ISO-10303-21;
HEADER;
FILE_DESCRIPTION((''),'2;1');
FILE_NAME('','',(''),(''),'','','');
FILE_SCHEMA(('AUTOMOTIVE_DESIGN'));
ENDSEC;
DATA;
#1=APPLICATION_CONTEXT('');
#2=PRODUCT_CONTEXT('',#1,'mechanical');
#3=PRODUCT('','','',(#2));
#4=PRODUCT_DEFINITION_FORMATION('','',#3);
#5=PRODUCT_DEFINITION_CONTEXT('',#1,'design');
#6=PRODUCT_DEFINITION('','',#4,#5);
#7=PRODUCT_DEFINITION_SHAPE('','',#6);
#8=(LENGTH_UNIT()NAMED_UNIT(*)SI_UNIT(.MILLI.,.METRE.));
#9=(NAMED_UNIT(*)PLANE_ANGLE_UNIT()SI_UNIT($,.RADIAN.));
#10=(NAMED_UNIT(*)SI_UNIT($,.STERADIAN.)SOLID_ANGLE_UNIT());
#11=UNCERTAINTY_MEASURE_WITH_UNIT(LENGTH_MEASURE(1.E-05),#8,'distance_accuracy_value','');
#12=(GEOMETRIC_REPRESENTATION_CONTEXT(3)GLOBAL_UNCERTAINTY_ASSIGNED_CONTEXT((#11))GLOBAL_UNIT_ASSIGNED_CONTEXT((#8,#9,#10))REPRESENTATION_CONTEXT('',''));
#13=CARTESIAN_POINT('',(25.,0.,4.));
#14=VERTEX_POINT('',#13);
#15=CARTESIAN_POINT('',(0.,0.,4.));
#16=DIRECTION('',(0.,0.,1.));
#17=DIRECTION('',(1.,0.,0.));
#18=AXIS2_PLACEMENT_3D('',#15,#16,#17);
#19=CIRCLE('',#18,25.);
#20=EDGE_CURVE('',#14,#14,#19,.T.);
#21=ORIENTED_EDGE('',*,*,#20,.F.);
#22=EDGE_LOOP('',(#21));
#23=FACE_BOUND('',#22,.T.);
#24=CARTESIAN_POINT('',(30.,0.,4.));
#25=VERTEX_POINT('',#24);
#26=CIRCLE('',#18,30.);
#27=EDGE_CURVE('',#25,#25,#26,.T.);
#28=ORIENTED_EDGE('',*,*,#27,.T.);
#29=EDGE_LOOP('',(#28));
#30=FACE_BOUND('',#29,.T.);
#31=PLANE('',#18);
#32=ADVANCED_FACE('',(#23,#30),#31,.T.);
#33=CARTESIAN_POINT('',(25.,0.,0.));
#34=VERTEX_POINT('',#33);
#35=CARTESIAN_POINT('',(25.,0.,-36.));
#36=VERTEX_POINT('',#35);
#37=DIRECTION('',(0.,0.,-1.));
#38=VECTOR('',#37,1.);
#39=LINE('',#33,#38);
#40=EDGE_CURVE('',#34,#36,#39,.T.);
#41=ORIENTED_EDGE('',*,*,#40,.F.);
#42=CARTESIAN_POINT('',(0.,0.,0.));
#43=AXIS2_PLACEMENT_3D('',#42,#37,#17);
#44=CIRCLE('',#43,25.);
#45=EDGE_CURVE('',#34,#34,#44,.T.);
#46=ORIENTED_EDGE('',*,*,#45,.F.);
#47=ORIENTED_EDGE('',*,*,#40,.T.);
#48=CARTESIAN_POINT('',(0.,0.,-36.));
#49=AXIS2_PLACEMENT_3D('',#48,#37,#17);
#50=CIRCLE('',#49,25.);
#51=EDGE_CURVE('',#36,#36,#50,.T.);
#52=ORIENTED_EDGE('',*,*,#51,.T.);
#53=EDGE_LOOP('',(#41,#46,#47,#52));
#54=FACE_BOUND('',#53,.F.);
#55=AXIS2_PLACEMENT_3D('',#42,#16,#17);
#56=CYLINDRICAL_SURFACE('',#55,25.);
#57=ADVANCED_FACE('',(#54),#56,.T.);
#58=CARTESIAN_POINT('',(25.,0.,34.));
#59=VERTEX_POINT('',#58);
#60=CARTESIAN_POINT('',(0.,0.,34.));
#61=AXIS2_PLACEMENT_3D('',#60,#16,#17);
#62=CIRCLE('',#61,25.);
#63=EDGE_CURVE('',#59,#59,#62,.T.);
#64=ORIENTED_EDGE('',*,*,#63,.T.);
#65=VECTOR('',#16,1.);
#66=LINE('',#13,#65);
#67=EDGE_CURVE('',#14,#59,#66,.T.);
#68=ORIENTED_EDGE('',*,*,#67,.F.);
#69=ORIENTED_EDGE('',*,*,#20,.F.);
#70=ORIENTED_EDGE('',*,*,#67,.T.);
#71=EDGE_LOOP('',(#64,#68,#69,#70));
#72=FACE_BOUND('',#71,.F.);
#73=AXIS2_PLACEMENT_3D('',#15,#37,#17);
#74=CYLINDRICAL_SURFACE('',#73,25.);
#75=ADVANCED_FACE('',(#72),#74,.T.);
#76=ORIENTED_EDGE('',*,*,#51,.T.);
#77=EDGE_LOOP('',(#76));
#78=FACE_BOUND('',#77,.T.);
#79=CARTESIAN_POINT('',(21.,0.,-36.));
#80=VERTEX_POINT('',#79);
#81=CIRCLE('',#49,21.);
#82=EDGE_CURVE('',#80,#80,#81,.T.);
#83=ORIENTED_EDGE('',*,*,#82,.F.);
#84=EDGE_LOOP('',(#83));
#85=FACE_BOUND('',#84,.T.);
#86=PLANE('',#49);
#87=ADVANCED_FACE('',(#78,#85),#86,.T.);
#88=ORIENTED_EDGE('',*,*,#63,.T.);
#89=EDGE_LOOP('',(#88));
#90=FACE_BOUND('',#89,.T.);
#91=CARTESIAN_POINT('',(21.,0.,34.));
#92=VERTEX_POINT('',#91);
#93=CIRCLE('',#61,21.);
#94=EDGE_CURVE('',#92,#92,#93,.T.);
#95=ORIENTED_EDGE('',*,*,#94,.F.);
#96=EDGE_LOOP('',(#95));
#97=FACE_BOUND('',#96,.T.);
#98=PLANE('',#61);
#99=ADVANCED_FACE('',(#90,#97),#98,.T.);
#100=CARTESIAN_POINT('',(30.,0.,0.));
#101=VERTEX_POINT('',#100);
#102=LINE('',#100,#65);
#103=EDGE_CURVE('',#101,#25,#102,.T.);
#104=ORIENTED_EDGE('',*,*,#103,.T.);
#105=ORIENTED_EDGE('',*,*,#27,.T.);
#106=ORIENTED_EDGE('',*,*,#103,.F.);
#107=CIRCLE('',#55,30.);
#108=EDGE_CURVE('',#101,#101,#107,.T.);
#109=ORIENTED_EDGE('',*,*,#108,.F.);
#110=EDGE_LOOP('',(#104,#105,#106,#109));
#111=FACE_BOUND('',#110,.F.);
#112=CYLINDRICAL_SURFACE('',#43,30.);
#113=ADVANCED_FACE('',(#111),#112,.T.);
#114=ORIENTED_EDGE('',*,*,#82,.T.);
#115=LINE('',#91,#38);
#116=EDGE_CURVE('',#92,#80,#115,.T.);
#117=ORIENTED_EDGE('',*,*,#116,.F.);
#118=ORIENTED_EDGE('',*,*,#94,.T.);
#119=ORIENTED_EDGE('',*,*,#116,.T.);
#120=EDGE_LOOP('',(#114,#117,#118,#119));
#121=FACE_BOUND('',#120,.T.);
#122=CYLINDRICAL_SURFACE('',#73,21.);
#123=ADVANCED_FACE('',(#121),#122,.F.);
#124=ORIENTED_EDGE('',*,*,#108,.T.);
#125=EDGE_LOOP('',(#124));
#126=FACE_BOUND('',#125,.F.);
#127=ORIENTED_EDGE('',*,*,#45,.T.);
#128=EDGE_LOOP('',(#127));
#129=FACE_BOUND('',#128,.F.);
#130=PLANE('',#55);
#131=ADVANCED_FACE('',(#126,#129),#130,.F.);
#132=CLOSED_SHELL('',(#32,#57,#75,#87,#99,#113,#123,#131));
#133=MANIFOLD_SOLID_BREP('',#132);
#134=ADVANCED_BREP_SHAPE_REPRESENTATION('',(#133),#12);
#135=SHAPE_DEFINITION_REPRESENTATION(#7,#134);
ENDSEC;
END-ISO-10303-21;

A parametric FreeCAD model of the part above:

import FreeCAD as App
import Part
import Sketcher
Q = App.Units.Quantity

doc = App.newDocument("Part")
params = doc.addObject("Spreadsheet::Sheet", "Params")
for row, (alias, value) in enumerate([
    ("sketch1_diameter", "60 mm"),
    ("sketch1_diameter2", "42 mm"),
    ("pad1_length", "4 mm"),
    ("sketch2_diameter", "50 mm"),
    ("sketch2_diameter2", "42 mm"),
    ("pad2_length", "36 mm"),
    ("sketch3_diameter", "50 mm"),
    ("sketch3_diameter2", "42 mm"),
    ("pad3_length", "30 mm"),
], start=1):
    params.set(f"A{row}", alias)
    params.set(f"B{row}", "=" + value)
    params.setAlias(f"B{row}", alias)

body = doc.addObject("PartDesign::Body", "Body")

sketch1 = doc.addObject("Sketcher::SketchObject", "Sketch")
body.addObject(sketch1)
sketch1.AttachmentSupport = (doc.XY_Plane, [""])
sketch1.MapMode = "FlatFace"
sketch1.addGeometry([
    Part.Circle(App.Vector(0, 0, 0), App.Vector(0, 0, 1), 30),
    Part.Circle(App.Vector(0, 0, 0), App.Vector(0, 0, 1), 21),
], False)
sketch1.addConstraint([
    Sketcher.Constraint("Coincident", 0, 3, -1, 1),
    Sketcher.Constraint("Coincident", 1, 3, -1, 1),
    Sketcher.Constraint("Diameter", 0, Q("60 mm")),
    Sketcher.Constraint("Diameter", 1, Q("42 mm")),
])
sketch1.setExpression("Constraints[2]", "Params.sketch1_diameter")
sketch1.setExpression("Constraints[3]", "Params.sketch1_diameter2")
pad1 = doc.addObject("PartDesign::Pad", "Pad")
body.addObject(pad1)
pad1.Profile = sketch1
pad1.setExpression("Length", "Params.pad1_length")

sketch2 = doc.addObject("Sketcher::SketchObject", "Sketch001")
body.addObject(sketch2)
sketch2.AttachmentSupport = (doc.XY_Plane, [""])
sketch2.MapMode = "FlatFace"
sketch2.addGeometry([
    Part.Circle(App.Vector(0, 0, 0), App.Vector(0, 0, 1), 25),
    Part.Circle(App.Vector(0, 0, 0), App.Vector(0, 0, 1), 21),
], False)
sketch2.addConstraint([
    Sketcher.Constraint("Coincident", 0, 3, -1, 1),
    Sketcher.Constraint("Coincident", 1, 3, -1, 1),
    Sketcher.Constraint("Diameter", 0, Q("50 mm")),
    Sketcher.Constraint("Diameter", 1, Q("42 mm")),
])
sketch2.setExpression("Constraints[2]", "Params.sketch2_diameter")
sketch2.setExpression("Constraints[3]", "Params.sketch2_diameter2")
pad2 = doc.addObject("PartDesign::Pad", "Pad001")
body.addObject(pad2)
pad2.Profile = sketch2
pad2.setExpression("Length", "Params.pad2_length")
pad2.Reversed = True

sketch3 = doc.addObject("Sketcher::SketchObject", "Sketch002")
body.addObject(sketch3)
sketch3.AttachmentSupport = (doc.XY_Plane, [""])
sketch3.MapMode = "FlatFace"
sketch3.AttachmentOffset = App.Placement(App.Vector(0, 0, 4), App.Rotation())
sketch3.addGeometry([
    Part.Circle(App.Vector(0, 0, 0), App.Vector(0, 0, 1), 25),
    Part.Circle(App.Vector(0, 0, 0), App.Vector(0, 0, 1), 21),
], False)
sketch3.addConstraint([
    Sketcher.Constraint("Coincident", 0, 3, -1, 1),
    Sketcher.Constraint("Coincident", 1, 3, -1, 1),
    Sketcher.Constraint("Diameter", 0, Q("50 mm")),
    Sketcher.Constraint("Diameter", 1, Q("42 mm")),
])
sketch3.setExpression("Constraints[2]", "Params.sketch3_diameter")
sketch3.setExpression("Constraints[3]", "Params.sketch3_diameter2")
pad3 = doc.addObject("PartDesign::Pad", "Pad002")
body.addObject(pad3)
pad3.Profile = sketch3
pad3.setExpression("Length", "Params.pad3_length")

doc.recompute()
